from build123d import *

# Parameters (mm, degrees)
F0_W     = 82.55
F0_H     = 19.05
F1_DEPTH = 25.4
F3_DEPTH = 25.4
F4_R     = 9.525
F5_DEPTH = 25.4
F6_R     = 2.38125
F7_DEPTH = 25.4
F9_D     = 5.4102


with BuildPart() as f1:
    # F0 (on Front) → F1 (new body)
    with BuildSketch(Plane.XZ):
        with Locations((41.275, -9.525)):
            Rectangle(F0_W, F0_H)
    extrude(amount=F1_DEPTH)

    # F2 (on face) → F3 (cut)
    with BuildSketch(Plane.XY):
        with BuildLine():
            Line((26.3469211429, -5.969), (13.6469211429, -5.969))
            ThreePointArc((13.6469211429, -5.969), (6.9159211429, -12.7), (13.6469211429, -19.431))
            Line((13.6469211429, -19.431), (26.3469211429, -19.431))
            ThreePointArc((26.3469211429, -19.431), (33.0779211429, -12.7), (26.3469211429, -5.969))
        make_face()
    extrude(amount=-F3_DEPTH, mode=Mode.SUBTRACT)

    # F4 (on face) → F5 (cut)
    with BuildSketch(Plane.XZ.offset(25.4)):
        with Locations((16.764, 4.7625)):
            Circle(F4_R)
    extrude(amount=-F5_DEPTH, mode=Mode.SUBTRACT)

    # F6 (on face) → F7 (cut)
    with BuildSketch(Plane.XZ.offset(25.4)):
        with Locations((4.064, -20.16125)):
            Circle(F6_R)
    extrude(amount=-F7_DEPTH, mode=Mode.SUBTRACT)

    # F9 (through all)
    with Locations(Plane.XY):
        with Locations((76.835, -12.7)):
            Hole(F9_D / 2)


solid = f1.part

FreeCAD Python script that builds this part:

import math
import FreeCAD as App
import Part
import Sketcher

V = App.Vector
Q = App.Units.Quantity


def add_polygon(sketch, points):
    """Adds a closed chain of lines whose ends are joined by coincident constraints."""
    first, n = sketch.GeometryCount, len(points)
    for a, b in zip(points, points[1:] + points[:1]):
        sketch.addGeometry(Part.LineSegment(App.Vector(*a, 0), App.Vector(*b, 0)), False)
    for i in range(n):
        sketch.addConstraint(Sketcher.Constraint("Coincident", first + i, 2, first + (i + 1) % n, 1))

doc = App.newDocument("Part")
body = doc.addObject("PartDesign::Body", "Body")

sketch1 = body.newObject("Sketcher::SketchObject", "Sketch")
sketch1.AttachmentSupport = (doc.getObject("XZ_Plane"), [""])
sketch1.MapMode = "FlatFace"
add_polygon(sketch1, [(0, 0), (0, -19.05), (82.55, -19.05), (82.55, 0)])
sketch1.addConstraint([
    Sketcher.Constraint("Vertical", 0),
    Sketcher.Constraint("Horizontal", 1),
    Sketcher.Constraint("Vertical", 2),
    Sketcher.Constraint("Horizontal", 3),
    Sketcher.Constraint("Coincident", 3, 2, -1, 1),
    Sketcher.Constraint("DistanceX", 1, 1, 1, 2, Q("3.25 in")),
    Sketcher.Constraint("DistanceY", 0, 2, 0, 1, Q("0.75 in")),
])
pad1 = body.newObject("PartDesign::Pad", "Pad")
pad1.Profile = sketch1
pad1.Length = Q("1 in")

sketch2 = body.newObject("Sketcher::SketchObject", "Sketch001")
sketch2.AttachmentSupport = (doc.getObject("XY_Plane"), [""])
sketch2.MapMode = "FlatFace"
sketch2.addGeometry([
    Part.LineSegment(V(26.346921, -5.969, 0), V(13.646921, -5.969, 0)),
    Part.ArcOfCircle(Part.Circle(V(13.646921, -12.7, 0), V(0, 0, 1), 6.731), math.radians(90), math.radians(270)),
    Part.LineSegment(V(13.646921, -19.431, 0), V(26.346921, -19.431, 0)),
    Part.ArcOfCircle(Part.Circle(V(26.346921, -12.7, 0), V(0, 0, 1), 6.731), math.radians(-90), math.radians(90)),
], False)
sketch2.addConstraint([
    Sketcher.Constraint("Tangent", 0, 2, 1, 1),
    Sketcher.Constraint("Tangent", 1, 2, 2, 1),
    Sketcher.Constraint("Tangent", 2, 2, 3, 1),
    Sketcher.Constraint("Tangent", 3, 2, 0, 1),
    Sketcher.Constraint("Horizontal", 0),
    Sketcher.Constraint("Horizontal", 2),
    Sketcher.Constraint("DistanceX", 0, 2, 0, 1, Q("0.5 in")),
    Sketcher.Constraint("Radius", 1, Q("0.265 in")),
    Sketcher.Constraint("DistanceY", 1, 3, -1, 1, Q("0.5 in")),
    Sketcher.Constraint("DistanceX", -1, 1, 1, 3, 13.646921),
])
pocket1 = body.newObject("PartDesign::Pocket", "Pocket")
pocket1.Profile = sketch2
pocket1.Length = Q("1 in")

sketch3 = body.newObject("Sketcher::SketchObject", "Sketch002")
sketch3.AttachmentSupport = (doc.getObject("XZ_Plane"), [""])
sketch3.MapMode = "FlatFace"
sketch3.AttachmentOffset = App.Placement(V(0, 0, 1 * 25.4), App.Rotation())
sketch3.addGeometry(Part.Circle(V(16.764, 4.7625, 0), V(0, 0, 1), 9.525), False)
sketch3.addConstraint([
    Sketcher.Constraint("Diameter", 0, Q("0.75 in")),
    Sketcher.Constraint("DistanceX", -1, 1, 0, 3, Q("0.66 in")),
    Sketcher.Constraint("DistanceY", -1, 1, 0, 3, Q("0.1875 in")),
])
pocket2 = body.newObject("PartDesign::Pocket", "Pocket001")
pocket2.Profile = sketch3
pocket2.Length = Q("1 in")

sketch4 = body.newObject("Sketcher::SketchObject", "Sketch003")
sketch4.AttachmentSupport = (doc.getObject("XZ_Plane"), [""])
sketch4.MapMode = "FlatFace"
sketch4.AttachmentOffset = App.Placement(V(0, 0, 1 * 25.4), App.Rotation())
sketch4.addGeometry(Part.Circle(V(4.064, -20.16125, 0), V(0, 0, 1), 2.38125), False)
sketch4.addConstraint([
    Sketcher.Constraint("Diameter", 0, Q("0.1875 in")),
    Sketcher.Constraint("DistanceX", -1, 1, 0, 3, Q("0.16 in")),
    Sketcher.Constraint("DistanceY", 0, 3, -1, 1, 20.16125),
])
pocket3 = body.newObject("PartDesign::Pocket", "Pocket002")
pocket3.Profile = sketch4
pocket3.Length = Q("1 in")

sketch5 = body.newObject("Sketcher::SketchObject", "Sketch004")
sketch5.AttachmentSupport = (doc.getObject("XY_Plane"), [""])
sketch5.MapMode = "FlatFace"
sketch5.addGeometry(Part.Circle(V(76.835, -12.7, 0), V(0, 0, 1), 2.7051), False)
sketch5.addConstraint([
    Sketcher.Constraint("Diameter", 0, Q("0.213 in")),
    Sketcher.Constraint("DistanceY", 0, 3, -1, 1, Q("0.5 in")),
    Sketcher.Constraint("DistanceX", -1, 1, 0, 3, Q("3.025 in")),
])
doc.recompute()
hole = body.newObject("PartDesign::Hole", "Hole")
hole.Profile = sketch5
hole.ThreadType = "None"
hole.Diameter = Q("0.213 in")
hole.DepthType = "ThroughAll"

doc.recompute()
